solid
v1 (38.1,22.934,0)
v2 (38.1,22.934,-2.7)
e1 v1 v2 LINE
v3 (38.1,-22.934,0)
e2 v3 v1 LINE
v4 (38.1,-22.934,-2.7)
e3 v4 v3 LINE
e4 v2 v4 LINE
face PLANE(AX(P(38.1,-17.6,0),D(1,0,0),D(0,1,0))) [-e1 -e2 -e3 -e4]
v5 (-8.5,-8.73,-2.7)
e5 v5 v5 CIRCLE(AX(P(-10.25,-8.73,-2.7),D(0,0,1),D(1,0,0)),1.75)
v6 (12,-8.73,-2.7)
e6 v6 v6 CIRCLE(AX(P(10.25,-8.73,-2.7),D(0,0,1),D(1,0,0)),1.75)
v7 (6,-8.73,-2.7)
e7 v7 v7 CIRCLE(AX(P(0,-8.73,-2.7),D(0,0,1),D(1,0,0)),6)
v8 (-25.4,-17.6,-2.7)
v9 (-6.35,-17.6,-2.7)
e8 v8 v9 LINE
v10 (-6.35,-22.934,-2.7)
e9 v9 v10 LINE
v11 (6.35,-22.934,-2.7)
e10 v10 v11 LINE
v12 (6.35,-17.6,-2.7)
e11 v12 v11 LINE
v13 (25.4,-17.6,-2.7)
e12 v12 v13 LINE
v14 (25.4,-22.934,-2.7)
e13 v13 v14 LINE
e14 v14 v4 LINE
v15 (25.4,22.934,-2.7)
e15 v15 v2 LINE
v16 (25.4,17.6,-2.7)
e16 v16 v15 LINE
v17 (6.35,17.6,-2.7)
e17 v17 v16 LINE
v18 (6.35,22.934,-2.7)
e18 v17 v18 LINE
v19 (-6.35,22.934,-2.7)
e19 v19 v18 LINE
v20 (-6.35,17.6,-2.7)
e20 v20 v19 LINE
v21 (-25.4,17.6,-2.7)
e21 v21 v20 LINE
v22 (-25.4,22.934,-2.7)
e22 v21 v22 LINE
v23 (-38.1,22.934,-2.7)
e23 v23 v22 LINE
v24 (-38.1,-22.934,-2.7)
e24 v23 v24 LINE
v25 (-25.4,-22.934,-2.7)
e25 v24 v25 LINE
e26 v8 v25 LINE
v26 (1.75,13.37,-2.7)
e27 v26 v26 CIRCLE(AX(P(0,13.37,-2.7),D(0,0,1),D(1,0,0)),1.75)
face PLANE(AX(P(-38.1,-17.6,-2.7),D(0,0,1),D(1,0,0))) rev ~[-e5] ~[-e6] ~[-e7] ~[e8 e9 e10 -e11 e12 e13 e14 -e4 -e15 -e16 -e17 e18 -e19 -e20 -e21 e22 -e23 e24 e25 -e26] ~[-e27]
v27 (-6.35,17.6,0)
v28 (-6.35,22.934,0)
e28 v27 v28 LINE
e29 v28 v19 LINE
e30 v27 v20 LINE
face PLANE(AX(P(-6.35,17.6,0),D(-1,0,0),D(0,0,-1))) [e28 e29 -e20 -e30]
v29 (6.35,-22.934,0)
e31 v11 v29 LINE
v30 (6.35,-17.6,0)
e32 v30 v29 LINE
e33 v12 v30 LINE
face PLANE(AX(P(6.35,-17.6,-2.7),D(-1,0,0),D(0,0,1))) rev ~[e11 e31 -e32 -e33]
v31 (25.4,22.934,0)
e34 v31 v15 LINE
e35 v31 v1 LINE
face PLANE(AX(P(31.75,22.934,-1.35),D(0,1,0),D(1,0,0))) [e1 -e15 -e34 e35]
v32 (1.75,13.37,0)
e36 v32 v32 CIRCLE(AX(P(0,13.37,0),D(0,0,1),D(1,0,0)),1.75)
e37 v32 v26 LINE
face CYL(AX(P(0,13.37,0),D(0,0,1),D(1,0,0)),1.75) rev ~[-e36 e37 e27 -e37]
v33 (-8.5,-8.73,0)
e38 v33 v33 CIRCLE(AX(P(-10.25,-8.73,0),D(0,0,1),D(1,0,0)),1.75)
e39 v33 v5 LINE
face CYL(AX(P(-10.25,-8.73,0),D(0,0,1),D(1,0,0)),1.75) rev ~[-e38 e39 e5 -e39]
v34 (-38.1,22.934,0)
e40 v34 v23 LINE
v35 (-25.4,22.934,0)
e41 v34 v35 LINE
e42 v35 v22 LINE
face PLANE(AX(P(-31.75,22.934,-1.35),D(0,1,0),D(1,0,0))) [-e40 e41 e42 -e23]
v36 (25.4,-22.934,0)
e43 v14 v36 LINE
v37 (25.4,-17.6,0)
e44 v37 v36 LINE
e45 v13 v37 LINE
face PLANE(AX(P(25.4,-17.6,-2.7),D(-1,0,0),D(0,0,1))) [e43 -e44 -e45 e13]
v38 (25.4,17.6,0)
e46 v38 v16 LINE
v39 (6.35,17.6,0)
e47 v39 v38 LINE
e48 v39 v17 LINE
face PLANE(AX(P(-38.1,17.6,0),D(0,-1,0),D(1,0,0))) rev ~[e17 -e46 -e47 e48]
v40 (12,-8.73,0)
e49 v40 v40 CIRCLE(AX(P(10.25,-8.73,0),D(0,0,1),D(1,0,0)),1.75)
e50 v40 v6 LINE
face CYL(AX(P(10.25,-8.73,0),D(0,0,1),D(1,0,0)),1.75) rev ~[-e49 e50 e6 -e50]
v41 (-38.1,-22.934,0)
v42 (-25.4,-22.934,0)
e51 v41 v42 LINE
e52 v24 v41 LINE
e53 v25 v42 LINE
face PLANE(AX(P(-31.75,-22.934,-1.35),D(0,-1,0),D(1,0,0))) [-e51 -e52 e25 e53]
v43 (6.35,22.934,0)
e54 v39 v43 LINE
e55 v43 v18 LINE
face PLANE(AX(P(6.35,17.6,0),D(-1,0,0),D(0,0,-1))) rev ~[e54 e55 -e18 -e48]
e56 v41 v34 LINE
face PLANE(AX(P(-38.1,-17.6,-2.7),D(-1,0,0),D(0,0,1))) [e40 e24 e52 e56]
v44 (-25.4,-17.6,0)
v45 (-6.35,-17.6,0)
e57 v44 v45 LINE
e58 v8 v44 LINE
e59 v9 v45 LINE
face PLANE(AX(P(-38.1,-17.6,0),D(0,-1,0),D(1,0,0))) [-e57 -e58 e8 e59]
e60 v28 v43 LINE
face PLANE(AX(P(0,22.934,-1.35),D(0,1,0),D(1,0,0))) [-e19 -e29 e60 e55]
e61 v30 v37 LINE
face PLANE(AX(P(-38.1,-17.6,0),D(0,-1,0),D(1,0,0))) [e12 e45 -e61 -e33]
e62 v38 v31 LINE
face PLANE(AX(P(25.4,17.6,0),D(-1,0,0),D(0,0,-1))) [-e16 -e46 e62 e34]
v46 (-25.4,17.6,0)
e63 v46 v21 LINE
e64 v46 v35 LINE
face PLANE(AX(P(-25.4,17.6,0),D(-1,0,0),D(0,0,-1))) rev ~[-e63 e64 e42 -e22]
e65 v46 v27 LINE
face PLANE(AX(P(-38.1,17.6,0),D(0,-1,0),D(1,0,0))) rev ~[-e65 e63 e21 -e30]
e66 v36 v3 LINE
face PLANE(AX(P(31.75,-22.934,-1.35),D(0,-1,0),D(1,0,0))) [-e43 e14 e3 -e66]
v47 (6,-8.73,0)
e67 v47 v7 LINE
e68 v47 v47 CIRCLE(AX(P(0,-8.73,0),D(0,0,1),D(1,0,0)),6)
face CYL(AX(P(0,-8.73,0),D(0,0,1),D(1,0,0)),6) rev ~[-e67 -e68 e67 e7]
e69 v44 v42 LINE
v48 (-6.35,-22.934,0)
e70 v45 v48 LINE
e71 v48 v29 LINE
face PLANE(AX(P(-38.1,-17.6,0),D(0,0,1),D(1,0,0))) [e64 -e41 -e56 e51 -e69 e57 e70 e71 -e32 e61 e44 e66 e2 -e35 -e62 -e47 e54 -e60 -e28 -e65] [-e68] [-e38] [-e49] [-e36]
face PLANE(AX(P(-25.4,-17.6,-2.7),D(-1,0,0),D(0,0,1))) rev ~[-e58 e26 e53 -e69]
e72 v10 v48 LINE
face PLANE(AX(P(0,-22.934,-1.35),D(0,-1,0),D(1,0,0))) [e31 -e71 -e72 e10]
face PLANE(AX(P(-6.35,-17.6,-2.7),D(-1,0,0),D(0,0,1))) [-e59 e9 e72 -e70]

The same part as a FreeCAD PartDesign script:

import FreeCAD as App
import Part
import Sketcher
from FreeCAD import Vector
Q = App.Units.Quantity

doc = App.newDocument("Part")
params = doc.addObject("Spreadsheet::Sheet", "Params")
for row, (alias, value) in enumerate([
    ("sketch1_width", "76.2 mm"),
    ("sketch1_height", "35.2 mm"),
    ("pad1_length", "2.7 mm"),
    ("sketch2_diameter", "12 mm"),
    ("sketch2_diameter2", "3.5 mm"),
    ("sketch3_width", "12.7 mm"),
    ("sketch3_height", "2.7 mm"),
    ("pad2_length", "5.334 mm"),
    ("sketch4_width", "12.7 mm"),
    ("sketch4_height", "2.7 mm"),
    ("pad3_length", "5.334 mm"),
], start=1):
    params.set(f"A{row}", alias)
    params.set(f"B{row}", "=" + value)
    params.setAlias(f"B{row}", alias)

body = doc.addObject("PartDesign::Body", "Body")

# Sketch on XY plane
sketch1 = doc.addObject("Sketcher::SketchObject", "Sketch")
body.addObject(sketch1)
sketch1.AttachmentSupport = (doc.XY_Plane, [""])
sketch1.MapMode = "FlatFace"
sketch1.addGeometry([
    Part.LineSegment(Vector(-38, 18, 0), Vector(-38, -18, 0)),
    Part.LineSegment(Vector(-38, -18, 0), Vector(38, -18, 0)),
    Part.LineSegment(Vector(38, -18, 0), Vector(38, 18, 0)),
    Part.LineSegment(Vector(38, 18, 0), Vector(-38, 18, 0)),
], False)
sketch1.addConstraint([
    Sketcher.Constraint("Coincident", 0, 2, 1, 1),
    Sketcher.Constraint("Coincident", 1, 2, 2, 1),
    Sketcher.Constraint("Coincident", 2, 2, 3, 1),
    Sketcher.Constraint("Coincident", 3, 2, 0, 1),
    Sketcher.Constraint("Vertical", 0),
    Sketcher.Constraint("Horizontal", 1),
    Sketcher.Constraint("Vertical", 2),
    Sketcher.Constraint("Horizontal", 3),
    Sketcher.Constraint("Symmetric", 0, 2, 2, 2, -1, 1),
    Sketcher.Constraint("DistanceX", 1, 1, 1, 2, Q("76.2 mm")),
    Sketcher.Constraint("DistanceY", 0, 2, 0, 1, Q("35.2 mm")),
])
sketch1.setExpression("Constraints[9]", "Params.sketch1_width")
sketch1.setExpression("Constraints[10]", "Params.sketch1_height")
pad1 = doc.addObject("PartDesign::Pad", "Pad")
body.addObject(pad1)
pad1.Profile = sketch1
pad1.setExpression("Length", "Params.pad1_length")
pad1.Reversed = True

# Sketch on XY plane
sketch2 = doc.addObject("Sketcher::SketchObject", "Sketch001")
body.addObject(sketch2)
sketch2.AttachmentSupport = (doc.XY_Plane, [""])
sketch2.MapMode = "FlatFace"
sketch2.addGeometry([
    Part.Circle(Vector(0, -8.7, 0), Vector(0, 0, 1), 6),
    Part.Circle(Vector(-10.2, -8.7, 0), Vector(0, 0, 1), 1.8),
    Part.Circle(Vector(10.2, -8.7, 0), Vector(0, 0, 1), 1.8),
    Part.Circle(Vector(0, 13.4, 0), Vector(0, 0, 1), 1.8),
], False)
sketch2.addConstraint([
    Sketcher.Constraint("Equal", 1, 2),
    Sketcher.Constraint("Equal", 2, 3),
    Sketcher.Constraint("Symmetric", 1, 3, 2, 3, -2),
    Sketcher.Constraint("PointOnObject", 0, 3, -2),
    Sketcher.Constraint("PointOnObject", 3, 3, -2),
    Sketcher.Constraint("Horizontal", 0, 3, 1, 3),
    Sketcher.Constraint("Diameter", 0, Q("12 mm")),
    Sketcher.Constraint("Diameter", 1, Q("3.5 mm")),
    Sketcher.Constraint("DistanceX", 1, 3, 2, 3, Q("20.5 mm")),
    Sketcher.Constraint("DistanceY", 0, 3, 3, 3, Q("22.1 mm")),
    Sketcher.Constraint("DistanceY", 0, 3, -1, 1, Q("8.73 mm")),
])
sketch2.setExpression("Constraints[6]", "Params.sketch2_diameter")
sketch2.setExpression("Constraints[7]", "Params.sketch2_diameter2")
pocket1 = doc.addObject("PartDesign::Pocket", "Pocket")
body.addObject(pocket1)
pocket1.Profile = sketch2
pocket1.Type = "ThroughAll"

# Sketch on XZ plane
sketch3 = doc.addObject("Sketcher::SketchObject", "Sketch002")
body.addObject(sketch3)
sketch3.AttachmentSupport = (doc.XZ_Plane, [""])
sketch3.MapMode = "FlatFace"
sketch3.AttachmentOffset = App.Placement(Vector(0, 0, -17.6), App.Rotation())
sketch3.addGeometry([
    Part.LineSegment(Vector(-38.1, -2.7, 0), Vector(-38.1, 0, 0)),  # 0
    Part.LineSegment(Vector(-38.1, 0, 0), Vector(-25.4, 0, 0)),  # 1
    Part.LineSegment(Vector(-25.4, 0, 0), Vector(-25.4, -2.7, 0)),  # 2
    Part.LineSegment(Vector(-25.4, -2.7, 0), Vector(-38.1, -2.7, 0)),  # 3
    Part.LineSegment(Vector(-6.3, -2.7, 0), Vector(-6.3, 0, 0)),  # 4
    Part.LineSegment(Vector(-6.3, 0, 0), Vector(6.3, 0, 0)),  # 5
    Part.LineSegment(Vector(6.3, 0, 0), Vector(6.3, -2.7, 0)),  # 6
    Part.LineSegment(Vector(6.3, -2.7, 0), Vector(-6.3, -2.7, 0)),  # 7
    Part.LineSegment(Vector(25.4, -2.7, 0), Vector(25.4, 0, 0)),  # 8
    Part.LineSegment(Vector(25.4, 0, 0), Vector(38.1, 0, 0)),  # 9
    Part.LineSegment(Vector(38.1, 0, 0), Vector(38.1, -2.7, 0)),  # 10
    Part.LineSegment(Vector(38.1, -2.7, 0), Vector(25.4, -2.7, 0)),  # 11
], False)
sketch3.addConstraint([
    Sketcher.Constraint("Coincident", 0, 2, 1, 1),
    Sketcher.Constraint("Coincident", 1, 2, 2, 1),
    Sketcher.Constraint("Coincident", 2, 2, 3, 1),
    Sketcher.Constraint("Coincident", 3, 2, 0, 1),
    Sketcher.Constraint("Coincident", 4, 2, 5, 1),
    Sketcher.Constraint("Coincident", 5, 2, 6, 1),
    Sketcher.Constraint("Coincident", 6, 2, 7, 1),
    Sketcher.Constraint("Coincident", 7, 2, 4, 1),
    Sketcher.Constraint("Coincident", 8, 2, 9, 1),
    Sketcher.Constraint("Coincident", 9, 2, 10, 1),
    Sketcher.Constraint("Coincident", 10, 2, 11, 1),
    Sketcher.Constraint("Coincident", 11, 2, 8, 1),
    Sketcher.Constraint("Vertical", 0),
    Sketcher.Constraint("Horizontal", 1),
    Sketcher.Constraint("Vertical", 2),
    Sketcher.Constraint("Horizontal", 3),
    Sketcher.Constraint("Vertical", 4),
    Sketcher.Constraint("Horizontal", 5),
    Sketcher.Constraint("Vertical", 6),
    Sketcher.Constraint("Horizontal", 7),
    Sketcher.Constraint("Vertical", 8),
    Sketcher.Constraint("Horizontal", 9),
    Sketcher.Constraint("Vertical", 10),
    Sketcher.Constraint("Horizontal", 11),
    Sketcher.Constraint("Symmetric", 4, 2, 5, 2, -1, 1),
    Sketcher.Constraint("Symmetric", 1, 2, 8, 2, -1, 1),
    Sketcher.Constraint("Symmetric", 0, 2, 9, 2, -2),
    Sketcher.Constraint("Horizontal", 3, 2, 6, 2),
    Sketcher.Constraint("Horizontal", 7, 2, 10, 2),
    Sketcher.Constraint("Equal", 3, 5),
    Sketcher.Constraint("DistanceX", 1, 1, 1, 2, Q("12.7 mm")),
    Sketcher.Constraint("DistanceY", 0, 1, 0, 2, Q("2.7 mm")),
    Sketcher.Constraint("DistanceX", 0, 2, -1, 1, Q("38.1 mm")),
])
sketch3.setExpression("Constraints[30]", "Params.sketch3_width")
sketch3.setExpression("Constraints[31]", "Params.sketch3_height")
pad2 = doc.addObject("PartDesign::Pad", "Pad001")
body.addObject(pad2)
pad2.Profile = sketch3
pad2.setExpression("Length", "Params.pad2_length")
pad2.Reversed = True

# Sketch on XZ plane
sketch4 = doc.addObject("Sketcher::SketchObject", "Sketch003")
body.addObject(sketch4)
sketch4.AttachmentSupport = (doc.XZ_Plane, [""])
sketch4.MapMode = "FlatFace"
sketch4.AttachmentOffset = App.Placement(Vector(0, 0, 17.6), App.Rotation())
sketch4.addGeometry([
    Part.LineSegment(Vector(-38.1, 0, 0), Vector(-38.1, -2.7, 0)),  # 0
    Part.LineSegment(Vector(-38.1, -2.7, 0), Vector(-25.4, -2.7, 0)),  # 1
    Part.LineSegment(Vector(-25.4, -2.7, 0), Vector(-25.4, 0, 0)),  # 2
    Part.LineSegment(Vector(-25.4, 0, 0), Vector(-38.1, 0, 0)),  # 3
    Part.LineSegment(Vector(-6.3, 0, 0), Vector(-6.3, -2.7, 0)),  # 4
    Part.LineSegment(Vector(-6.3, -2.7, 0), Vector(6.3, -2.7, 0)),  # 5
    Part.LineSegment(Vector(6.3, -2.7, 0), Vector(6.3, 0, 0)),  # 6
    Part.LineSegment(Vector(6.3, 0, 0), Vector(-6.3, 0, 0)),  # 7
    Part.LineSegment(Vector(25.4, 0, 0), Vector(25.4, -2.7, 0)),  # 8
    Part.LineSegment(Vector(25.4, -2.7, 0), Vector(38.1, -2.7, 0)),  # 9
    Part.LineSegment(Vector(38.1, -2.7, 0), Vector(38.1, 0, 0)),  # 10
    Part.LineSegment(Vector(38.1, 0, 0), Vector(25.4, 0, 0)),  # 11
], False)
sketch4.addConstraint([
    Sketcher.Constraint("Coincident", 0, 2, 1, 1),
    Sketcher.Constraint("Coincident", 1, 2, 2, 1),
    Sketcher.Constraint("Coincident", 2, 2, 3, 1),
    Sketcher.Constraint("Coincident", 3, 2, 0, 1),
    Sketcher.Constraint("Coincident", 4, 2, 5, 1),
    Sketcher.Constraint("Coincident", 5, 2, 6, 1),
    Sketcher.Constraint("Coincident", 6, 2, 7, 1),
    Sketcher.Constraint("Coincident", 7, 2, 4, 1),
    Sketcher.Constraint("Coincident", 8, 2, 9, 1),
    Sketcher.Constraint("Coincident", 9, 2, 10, 1),
    Sketcher.Constraint("Coincident", 10, 2, 11, 1),
    Sketcher.Constraint("Coincident", 11, 2, 8, 1),
    Sketcher.Constraint("Vertical", 0),
    Sketcher.Constraint("Horizontal", 1),
    Sketcher.Constraint("Vertical", 2),
    Sketcher.Constraint("Horizontal", 3),
    Sketcher.Constraint("Vertical", 4),
    Sketcher.Constraint("Horizontal", 5),
    Sketcher.Constraint("Vertical", 6),
    Sketcher.Constraint("Horizontal", 7),
    Sketcher.Constraint("Vertical", 8),
    Sketcher.Constraint("Horizontal", 9),
    Sketcher.Constraint("Vertical", 10),
    Sketcher.Constraint("Horizontal", 11),
    Sketcher.Constraint("Symmetric", 6, 2, 7, 2, -1, 1),
    Sketcher.Constraint("Symmetric", 3, 2, 10, 2, -1, 1),
    Sketcher.Constraint("Symmetric", 1, 2, 8, 2, -2),
    Sketcher.Constraint("PointOnObject", 2, 2, -1),
    Sketcher.Constraint("Horizontal", 1, 2, 4, 2),
    Sketcher.Constraint("Equal", 3, 5),
    Sketcher.Constraint("DistanceX", 1, 1, 1, 2, Q("12.7 mm")),
    Sketcher.Constraint("DistanceY", 0, 2, 0, 1, Q("2.7 mm")),
    Sketcher.Constraint("DistanceX", 0, 2, -1, 1, Q("38.1 mm")),
])
sketch4.setExpression("Constraints[30]", "Params.sketch4_width")
sketch4.setExpression("Constraints[31]", "Params.sketch4_height")
pad3 = doc.addObject("PartDesign::Pad", "Pad002")
body.addObject(pad3)
pad3.Profile = sketch4
pad3.setExpression("Length", "Params.pad3_length")

doc.recompute()
